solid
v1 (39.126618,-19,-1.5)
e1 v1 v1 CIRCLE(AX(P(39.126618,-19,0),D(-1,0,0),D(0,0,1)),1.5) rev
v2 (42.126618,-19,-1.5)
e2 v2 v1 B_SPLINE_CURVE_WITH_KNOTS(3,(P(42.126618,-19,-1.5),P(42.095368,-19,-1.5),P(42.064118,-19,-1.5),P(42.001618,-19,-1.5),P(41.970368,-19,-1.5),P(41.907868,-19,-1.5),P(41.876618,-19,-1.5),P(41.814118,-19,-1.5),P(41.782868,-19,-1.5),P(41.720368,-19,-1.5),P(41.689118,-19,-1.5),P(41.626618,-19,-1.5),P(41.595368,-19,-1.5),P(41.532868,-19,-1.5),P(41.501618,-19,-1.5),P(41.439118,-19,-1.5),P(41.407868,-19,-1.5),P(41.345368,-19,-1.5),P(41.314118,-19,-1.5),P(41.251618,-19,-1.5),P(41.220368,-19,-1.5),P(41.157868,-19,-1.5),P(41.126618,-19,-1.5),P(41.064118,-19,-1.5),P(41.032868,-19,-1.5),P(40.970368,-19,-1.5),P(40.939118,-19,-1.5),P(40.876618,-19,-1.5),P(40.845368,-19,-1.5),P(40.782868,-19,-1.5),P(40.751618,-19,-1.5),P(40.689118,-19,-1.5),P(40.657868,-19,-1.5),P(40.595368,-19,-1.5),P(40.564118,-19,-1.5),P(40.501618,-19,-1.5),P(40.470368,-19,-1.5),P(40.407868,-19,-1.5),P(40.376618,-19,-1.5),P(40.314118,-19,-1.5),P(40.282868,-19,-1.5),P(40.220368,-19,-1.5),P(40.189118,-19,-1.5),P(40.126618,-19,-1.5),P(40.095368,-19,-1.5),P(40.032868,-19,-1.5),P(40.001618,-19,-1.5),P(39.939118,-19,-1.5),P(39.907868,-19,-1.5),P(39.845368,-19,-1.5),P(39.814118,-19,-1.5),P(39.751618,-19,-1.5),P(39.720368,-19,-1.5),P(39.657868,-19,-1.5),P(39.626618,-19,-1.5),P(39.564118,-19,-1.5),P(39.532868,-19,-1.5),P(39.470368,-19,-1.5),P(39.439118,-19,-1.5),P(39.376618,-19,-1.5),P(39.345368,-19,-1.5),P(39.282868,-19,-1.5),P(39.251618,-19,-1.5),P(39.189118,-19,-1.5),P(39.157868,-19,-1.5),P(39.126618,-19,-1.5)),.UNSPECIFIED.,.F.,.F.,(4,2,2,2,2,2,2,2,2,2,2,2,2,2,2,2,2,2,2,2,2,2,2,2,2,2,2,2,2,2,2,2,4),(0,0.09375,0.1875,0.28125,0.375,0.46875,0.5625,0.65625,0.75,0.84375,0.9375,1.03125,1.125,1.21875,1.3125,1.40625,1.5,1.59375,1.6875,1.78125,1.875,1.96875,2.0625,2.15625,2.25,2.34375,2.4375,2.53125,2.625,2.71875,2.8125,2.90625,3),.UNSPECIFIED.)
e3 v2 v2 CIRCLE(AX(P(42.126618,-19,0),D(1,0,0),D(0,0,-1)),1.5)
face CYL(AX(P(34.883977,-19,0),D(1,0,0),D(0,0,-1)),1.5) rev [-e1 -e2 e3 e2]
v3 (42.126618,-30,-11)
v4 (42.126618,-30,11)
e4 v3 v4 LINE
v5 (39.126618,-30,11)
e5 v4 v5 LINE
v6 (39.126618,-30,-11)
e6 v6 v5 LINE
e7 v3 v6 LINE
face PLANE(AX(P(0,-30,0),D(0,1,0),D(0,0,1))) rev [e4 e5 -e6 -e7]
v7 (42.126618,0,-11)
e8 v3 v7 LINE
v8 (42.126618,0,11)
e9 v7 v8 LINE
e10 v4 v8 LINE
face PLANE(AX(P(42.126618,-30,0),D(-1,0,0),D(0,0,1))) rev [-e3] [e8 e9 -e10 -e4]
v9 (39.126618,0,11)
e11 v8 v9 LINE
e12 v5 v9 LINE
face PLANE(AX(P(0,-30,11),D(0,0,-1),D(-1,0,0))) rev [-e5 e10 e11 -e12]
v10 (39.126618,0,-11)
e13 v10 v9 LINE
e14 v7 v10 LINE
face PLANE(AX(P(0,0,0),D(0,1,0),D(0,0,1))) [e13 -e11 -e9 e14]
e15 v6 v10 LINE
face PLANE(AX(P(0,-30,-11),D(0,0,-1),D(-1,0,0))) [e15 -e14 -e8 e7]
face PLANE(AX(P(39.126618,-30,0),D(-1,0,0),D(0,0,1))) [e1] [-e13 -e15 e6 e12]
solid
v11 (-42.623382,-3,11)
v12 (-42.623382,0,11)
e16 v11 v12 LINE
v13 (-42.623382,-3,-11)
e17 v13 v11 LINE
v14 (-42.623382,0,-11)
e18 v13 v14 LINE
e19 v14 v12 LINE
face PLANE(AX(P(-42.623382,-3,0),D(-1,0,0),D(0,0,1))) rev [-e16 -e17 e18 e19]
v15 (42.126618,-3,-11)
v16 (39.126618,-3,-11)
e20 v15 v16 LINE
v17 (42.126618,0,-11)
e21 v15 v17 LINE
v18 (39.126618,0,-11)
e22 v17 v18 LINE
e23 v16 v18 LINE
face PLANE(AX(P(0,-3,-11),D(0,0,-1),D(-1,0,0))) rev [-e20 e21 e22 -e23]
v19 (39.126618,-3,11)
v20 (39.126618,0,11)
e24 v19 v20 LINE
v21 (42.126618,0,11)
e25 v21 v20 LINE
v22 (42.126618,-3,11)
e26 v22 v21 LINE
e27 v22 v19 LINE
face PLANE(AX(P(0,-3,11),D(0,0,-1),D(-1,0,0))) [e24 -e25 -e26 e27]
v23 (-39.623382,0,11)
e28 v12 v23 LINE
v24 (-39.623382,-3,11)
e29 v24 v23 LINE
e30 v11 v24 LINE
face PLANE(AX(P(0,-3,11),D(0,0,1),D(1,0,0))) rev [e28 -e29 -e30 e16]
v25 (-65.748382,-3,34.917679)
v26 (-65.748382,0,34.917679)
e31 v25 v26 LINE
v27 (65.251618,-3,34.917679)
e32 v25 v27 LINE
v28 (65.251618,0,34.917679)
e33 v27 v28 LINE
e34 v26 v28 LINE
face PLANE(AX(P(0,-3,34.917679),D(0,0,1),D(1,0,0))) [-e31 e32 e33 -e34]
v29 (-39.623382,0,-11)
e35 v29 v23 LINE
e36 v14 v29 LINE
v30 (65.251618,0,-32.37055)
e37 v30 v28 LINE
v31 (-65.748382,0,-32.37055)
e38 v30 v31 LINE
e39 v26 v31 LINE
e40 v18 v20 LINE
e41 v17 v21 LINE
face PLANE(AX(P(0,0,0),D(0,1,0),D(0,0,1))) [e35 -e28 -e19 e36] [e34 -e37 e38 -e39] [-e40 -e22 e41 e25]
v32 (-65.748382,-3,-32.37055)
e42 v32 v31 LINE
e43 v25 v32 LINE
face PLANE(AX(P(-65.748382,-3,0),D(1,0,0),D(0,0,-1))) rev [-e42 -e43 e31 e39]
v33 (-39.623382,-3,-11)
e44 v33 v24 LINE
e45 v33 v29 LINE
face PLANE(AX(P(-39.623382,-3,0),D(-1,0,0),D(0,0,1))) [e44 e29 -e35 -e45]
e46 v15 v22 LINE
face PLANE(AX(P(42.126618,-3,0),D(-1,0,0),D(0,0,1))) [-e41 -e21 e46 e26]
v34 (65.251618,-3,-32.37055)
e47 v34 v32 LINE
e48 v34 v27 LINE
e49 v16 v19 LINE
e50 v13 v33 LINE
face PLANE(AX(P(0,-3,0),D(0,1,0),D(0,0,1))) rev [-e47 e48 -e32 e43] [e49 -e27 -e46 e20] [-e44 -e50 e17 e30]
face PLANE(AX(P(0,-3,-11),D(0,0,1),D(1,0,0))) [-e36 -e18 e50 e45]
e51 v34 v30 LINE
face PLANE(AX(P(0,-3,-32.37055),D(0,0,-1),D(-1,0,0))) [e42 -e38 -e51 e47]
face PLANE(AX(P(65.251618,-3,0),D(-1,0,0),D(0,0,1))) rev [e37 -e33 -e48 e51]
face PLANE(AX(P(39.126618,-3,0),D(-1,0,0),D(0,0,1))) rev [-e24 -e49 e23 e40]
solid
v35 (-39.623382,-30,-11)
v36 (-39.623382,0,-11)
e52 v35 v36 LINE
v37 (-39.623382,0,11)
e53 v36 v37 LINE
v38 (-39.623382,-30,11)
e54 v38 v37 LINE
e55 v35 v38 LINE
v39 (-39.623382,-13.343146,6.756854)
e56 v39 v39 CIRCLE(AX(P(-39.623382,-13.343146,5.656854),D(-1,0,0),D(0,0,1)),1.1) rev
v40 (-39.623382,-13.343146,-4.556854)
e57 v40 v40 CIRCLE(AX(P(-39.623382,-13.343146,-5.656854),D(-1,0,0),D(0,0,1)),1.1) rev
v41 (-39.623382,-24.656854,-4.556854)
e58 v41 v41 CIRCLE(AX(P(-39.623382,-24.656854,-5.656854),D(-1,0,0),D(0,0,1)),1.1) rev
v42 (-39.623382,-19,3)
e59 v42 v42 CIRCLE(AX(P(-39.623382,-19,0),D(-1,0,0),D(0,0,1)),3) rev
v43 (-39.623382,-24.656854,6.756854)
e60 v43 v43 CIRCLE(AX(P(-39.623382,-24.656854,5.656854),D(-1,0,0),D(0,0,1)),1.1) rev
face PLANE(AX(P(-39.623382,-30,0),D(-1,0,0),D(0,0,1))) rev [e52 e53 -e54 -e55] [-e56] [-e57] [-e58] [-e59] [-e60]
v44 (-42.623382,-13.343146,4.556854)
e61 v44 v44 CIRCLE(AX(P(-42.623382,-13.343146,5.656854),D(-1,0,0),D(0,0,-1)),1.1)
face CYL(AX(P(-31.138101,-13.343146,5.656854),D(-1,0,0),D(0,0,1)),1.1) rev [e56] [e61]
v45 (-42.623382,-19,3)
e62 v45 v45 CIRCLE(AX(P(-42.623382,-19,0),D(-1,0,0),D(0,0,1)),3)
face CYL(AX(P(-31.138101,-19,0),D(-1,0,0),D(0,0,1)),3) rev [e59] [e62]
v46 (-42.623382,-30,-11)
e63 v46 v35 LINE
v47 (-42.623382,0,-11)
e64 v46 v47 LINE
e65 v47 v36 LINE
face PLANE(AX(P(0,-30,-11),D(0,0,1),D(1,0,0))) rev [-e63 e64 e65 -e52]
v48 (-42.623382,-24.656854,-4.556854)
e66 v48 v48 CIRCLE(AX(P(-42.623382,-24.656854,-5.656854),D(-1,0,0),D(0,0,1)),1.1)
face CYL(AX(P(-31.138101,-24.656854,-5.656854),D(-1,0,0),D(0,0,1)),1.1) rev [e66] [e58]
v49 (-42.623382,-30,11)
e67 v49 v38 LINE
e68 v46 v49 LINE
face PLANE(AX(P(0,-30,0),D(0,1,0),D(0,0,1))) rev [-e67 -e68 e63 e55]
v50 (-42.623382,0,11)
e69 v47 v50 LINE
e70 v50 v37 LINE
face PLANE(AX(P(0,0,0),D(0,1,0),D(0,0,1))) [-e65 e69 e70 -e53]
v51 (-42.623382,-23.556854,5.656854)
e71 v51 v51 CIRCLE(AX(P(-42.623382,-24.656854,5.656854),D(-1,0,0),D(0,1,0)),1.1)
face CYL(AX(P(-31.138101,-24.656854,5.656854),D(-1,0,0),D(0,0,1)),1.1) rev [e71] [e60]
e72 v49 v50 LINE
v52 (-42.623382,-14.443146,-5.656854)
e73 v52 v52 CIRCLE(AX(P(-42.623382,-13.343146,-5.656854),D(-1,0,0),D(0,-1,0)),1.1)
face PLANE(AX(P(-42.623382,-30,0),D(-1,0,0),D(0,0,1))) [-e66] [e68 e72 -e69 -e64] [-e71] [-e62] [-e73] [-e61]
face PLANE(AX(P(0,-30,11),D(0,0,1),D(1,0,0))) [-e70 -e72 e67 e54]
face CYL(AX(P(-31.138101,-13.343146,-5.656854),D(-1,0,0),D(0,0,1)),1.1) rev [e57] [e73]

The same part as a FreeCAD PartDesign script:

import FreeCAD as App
import Part
import Sketcher

V = App.Vector

doc = App.newDocument("Part")
params = doc.addObject("Spreadsheet::Sheet", "Params")
for row, (alias, value) in enumerate([
    ("sketch1_width", "131 mm"),
    ("sketch1_width2", "3 mm"),
    ("sketch1_height", "22 mm"),
    ("pad1_length", "3 mm"),
    ("sketch2_width", "3 mm"),
    ("sketch2_height", "22 mm"),
    ("pad2_length", "30 mm"),
    ("sketch3_diameter", "6 mm"),
    ("sketch3_diameter2", "2.2 mm"),
    ("pocket1_length", "3 mm"),
    ("sketch4_width", "3 mm"),
    ("sketch4_height", "22 mm"),
    ("pad3_length", "30 mm"),
    ("sketch5_diameter", "3 mm"),
    ("pocket2_length", "3 mm"),
], start=1):
    params.set(f"A{row}", alias)
    params.set(f"B{row}", "=" + value)
    params.setAlias(f"B{row}", alias)

body = doc.addObject("PartDesign::Body", "Body")

sketch1 = body.newObject("Sketcher::SketchObject", "Sketch")
sketch1.AttachmentSupport = (doc.getObject("XZ_Plane"), [""])
sketch1.MapMode = "FlatFace"
sketch1.addGeometry([
    Part.LineSegment(V(-65.7, -32.4, 0), V(-65.7, 34.9, 0)),
    Part.LineSegment(V(-65.7, 34.9, 0), V(65.3, 34.9, 0)),
    Part.LineSegment(V(65.3, 34.9, 0), V(65.3, -32.4, 0)),
    Part.LineSegment(V(65.3, -32.4, 0), V(-65.7, -32.4, 0)),
    Part.LineSegment(V(-39.6, 11, 0), V(-42.6, 11, 0)),
    Part.LineSegment(V(-42.6, 11, 0), V(-42.6, -11, 0)),
    Part.LineSegment(V(-42.6, -11, 0), V(-39.6, -11, 0)),
    Part.LineSegment(V(-39.6, -11, 0), V(-39.6, 11, 0)),
    Part.LineSegment(V(42.1, 11, 0), V(39.1, 11, 0)),
    Part.LineSegment(V(39.1, 11, 0), V(39.1, -11, 0)),
    Part.LineSegment(V(39.1, -11, 0), V(42.1, -11, 0)),
    Part.LineSegment(V(42.1, -11, 0), V(42.1, 11, 0)),
], False)
sketch1.addConstraint([
    Sketcher.Constraint("Coincident", 0, 2, 1, 1),
    Sketcher.Constraint("Coincident", 1, 2, 2, 1),
    Sketcher.Constraint("Coincident", 2, 2, 3, 1),
    Sketcher.Constraint("Coincident", 3, 2, 0, 1),
    Sketcher.Constraint("Coincident", 4, 2, 5, 1),
    Sketcher.Constraint("Coincident", 5, 2, 6, 1),
    Sketcher.Constraint("Coincident", 6, 2, 7, 1),
    Sketcher.Constraint("Coincident", 7, 2, 4, 1),
    Sketcher.Constraint("Coincident", 8, 2, 9, 1),
    Sketcher.Constraint("Coincident", 9, 2, 10, 1),
    Sketcher.Constraint("Coincident", 10, 2, 11, 1),
    Sketcher.Constraint("Coincident", 11, 2, 8, 1),
    Sketcher.Constraint("Vertical", 0),
    Sketcher.Constraint("Horizontal", 1),
    Sketcher.Constraint("Vertical", 2),
    Sketcher.Constraint("Horizontal", 3),
    Sketcher.Constraint("Horizontal", 4),
    Sketcher.Constraint("Vertical", 5),
    Sketcher.Constraint("Horizontal", 6),
    Sketcher.Constraint("Vertical", 7),
    Sketcher.Constraint("Horizontal", 8),
    Sketcher.Constraint("Vertical", 9),
    Sketcher.Constraint("Horizontal", 10),
    Sketcher.Constraint("Vertical", 11),
    Sketcher.Constraint("Horizontal", 7, 2, 8, 2),
    Sketcher.Constraint("Horizontal", 6, 2, 9, 2),
    Sketcher.Constraint("Equal", 6, 8),
    Sketcher.Constraint("DistanceX", 1, 1, 1, 2, 131.0),
    Sketcher.Constraint("DistanceX", 4, 2, 4, 1, 3.0),
    Sketcher.Constraint("DistanceY", 5, 2, 5, 1, 22.0),
    Sketcher.Constraint("DistanceY", -1, 1, 4, 2, 11.0),
    Sketcher.Constraint("DistanceX", 7, 2, 8, 2, 78.75),
    Sketcher.Constraint("DistanceX", 0, 2, 4, 2, 23.125),
    Sketcher.Constraint("DistanceY", 0, 1, 0, 2, 67.288229),
    Sketcher.Constraint("DistanceX", 0, 2, -1, 1, 65.748382),
    Sketcher.Constraint("DistanceY", -1, 1, 0, 2, 34.917679),
])
sketch1.setExpression("Constraints[27]", "Params.sketch1_width")
sketch1.setExpression("Constraints[28]", "Params.sketch1_width2")
sketch1.setExpression("Constraints[29]", "Params.sketch1_height")
pad1 = body.newObject("PartDesign::Pad", "Pad")
pad1.Profile = sketch1
pad1.setExpression("Length", "Params.pad1_length")
body2 = doc.addObject("PartDesign::Body", "Body001")

sketch2 = body2.newObject("Sketcher::SketchObject", "Sketch001")
sketch2.AttachmentSupport = (doc.getObject("XZ_Plane001"), [""])
sketch2.MapMode = "FlatFace"
sketch2.addGeometry([
    Part.LineSegment(V(-42.6, -11, 0), V(-42.6, 11, 0)),
    Part.LineSegment(V(-42.6, 11, 0), V(-39.6, 11, 0)),
    Part.LineSegment(V(-39.6, 11, 0), V(-39.6, -11, 0)),
    Part.LineSegment(V(-39.6, -11, 0), V(-42.6, -11, 0)),
], False)
sketch2.addConstraint([
    Sketcher.Constraint("Coincident", 0, 2, 1, 1),
    Sketcher.Constraint("Coincident", 1, 2, 2, 1),
    Sketcher.Constraint("Coincident", 2, 2, 3, 1),
    Sketcher.Constraint("Coincident", 3, 2, 0, 1),
    Sketcher.Constraint("Vertical", 0),
    Sketcher.Constraint("Horizontal", 1),
    Sketcher.Constraint("Vertical", 2),
    Sketcher.Constraint("Horizontal", 3),
    Sketcher.Constraint("DistanceX", 1, 1, 1, 2, 3.0),
    Sketcher.Constraint("DistanceY", 0, 1, 0, 2, 22.0),
    Sketcher.Constraint("DistanceY", -1, 1, 0, 2, 11.0),
    Sketcher.Constraint("DistanceX", 0, 2, -1, 1, 42.623382),
])
sketch2.setExpression("Constraints[8]", "Params.sketch2_width")
sketch2.setExpression("Constraints[9]", "Params.sketch2_height")
pad2 = body2.newObject("PartDesign::Pad", "Pad001")
pad2.Profile = sketch2
pad2.setExpression("Length", "Params.pad2_length")

sketch3 = body2.newObject("Sketcher::SketchObject", "Sketch002")
sketch3.AttachmentSupport = (doc.getObject("YZ_Plane001"), [""])
sketch3.MapMode = "FlatFace"
sketch3.AttachmentOffset = App.Placement(V(0, 0, -42.623382), App.Rotation())
sketch3.addGeometry([
    Part.Circle(V(-19, 0, 0), V(0, 0, 1), 3),
    Part.Circle(V(-24.7, -5.7, 0), V(0, 0, 1), 1.1),
], False)
sketch3.addConstraint([
    Sketcher.Constraint("PointOnObject", 0, 3, -1),
    Sketcher.Constraint("Diameter", 0, 6.0),
    Sketcher.Constraint("Diameter", 1, 2.2),
    Sketcher.Constraint("DistanceX", 0, 3, -1, 1, 19.0),
    Sketcher.Constraint("DistanceX", 1, 3, -1, 1, 24.656854),
    Sketcher.Constraint("DistanceY", 1, 3, -1, 1, 5.656854),
])
sketch3.setExpression("Constraints[1]", "Params.sketch3_diameter")
sketch3.setExpression("Constraints[2]", "Params.sketch3_diameter2")
pocket1 = body2.newObject("PartDesign::Pocket", "Pocket")
pocket1.Profile = sketch3
pocket1.setExpression("Length", "Params.pocket1_length")
pocket1.Reversed = True
doc.recompute()

datumline = body2.newObject("PartDesign::Line", "DatumLine")
datumline.Placement = App.Placement(V(0, -19, 0), App.Rotation(V(0, 0, 1), V(1, 0, 0)))
polarpattern = body2.newObject("PartDesign::PolarPattern", "PolarPattern")
polarpattern.Originals = [pocket1]
polarpattern.Axis = (datumline, [""])
polarpattern.Angle = 360
polarpattern.Occurrences = 4
body2.Tip = polarpattern
body3 = doc.addObject("PartDesign::Body", "Body002")

sketch4 = body3.newObject("Sketcher::SketchObject", "Sketch003")
sketch4.AttachmentSupport = (doc.getObject("XZ_Plane002"), [""])
sketch4.MapMode = "FlatFace"
sketch4.addGeometry([
    Part.LineSegment(V(39.1, -11, 0), V(39.1, 11, 0)),
    Part.LineSegment(V(39.1, 11, 0), V(42.1, 11, 0)),
    Part.LineSegment(V(42.1, 11, 0), V(42.1, -11, 0)),
    Part.LineSegment(V(42.1, -11, 0), V(39.1, -11, 0)),
], False)
sketch4.addConstraint([
    Sketcher.Constraint("Coincident", 0, 2, 1, 1),
    Sketcher.Constraint("Coincident", 1, 2, 2, 1),
    Sketcher.Constraint("Coincident", 2, 2, 3, 1),
    Sketcher.Constraint("Coincident", 3, 2, 0, 1),
    Sketcher.Constraint("Vertical", 0),
    Sketcher.Constraint("Horizontal", 1),
    Sketcher.Constraint("Vertical", 2),
    Sketcher.Constraint("Horizontal", 3),
    Sketcher.Constraint("DistanceX", 1, 1, 1, 2, 3.0),
    Sketcher.Constraint("DistanceY", 0, 1, 0, 2, 22.0),
    Sketcher.Constraint("DistanceY", -1, 1, 0, 2, 11.0),
    Sketcher.Constraint("DistanceX", -1, 1, 0, 2, 39.126618),
])
sketch4.setExpression("Constraints[8]", "Params.sketch4_width")
sketch4.setExpression("Constraints[9]", "Params.sketch4_height")
pad3 = body3.newObject("PartDesign::Pad", "Pad002")
pad3.Profile = sketch4
pad3.setExpression("Length", "Params.pad3_length")

sketch5 = body3.newObject("Sketcher::SketchObject", "Sketch004")
sketch5.AttachmentSupport = (doc.getObject("YZ_Plane002"), [""])
sketch5.MapMode = "FlatFace"
sketch5.AttachmentOffset = App.Placement(V(0, 0, 42.126618), App.Rotation())
sketch5.addGeometry(Part.Circle(V(-19, 0, 0), V(0, 0, 1), 1.5), False)
sketch5.addConstraint([
    Sketcher.Constraint("PointOnObject", 0, 3, -1),
    Sketcher.Constraint("Diameter", 0, 3.0),
    Sketcher.Constraint("DistanceX", 0, 3, -1, 1, 19.0),
])
sketch5.setExpression("Constraints[1]", "Params.sketch5_diameter")
pocket2 = body3.newObject("PartDesign::Pocket", "Pocket001")
pocket2.Profile = sketch5
pocket2.setExpression("Length", "Params.pocket2_length")

doc.recompute()
